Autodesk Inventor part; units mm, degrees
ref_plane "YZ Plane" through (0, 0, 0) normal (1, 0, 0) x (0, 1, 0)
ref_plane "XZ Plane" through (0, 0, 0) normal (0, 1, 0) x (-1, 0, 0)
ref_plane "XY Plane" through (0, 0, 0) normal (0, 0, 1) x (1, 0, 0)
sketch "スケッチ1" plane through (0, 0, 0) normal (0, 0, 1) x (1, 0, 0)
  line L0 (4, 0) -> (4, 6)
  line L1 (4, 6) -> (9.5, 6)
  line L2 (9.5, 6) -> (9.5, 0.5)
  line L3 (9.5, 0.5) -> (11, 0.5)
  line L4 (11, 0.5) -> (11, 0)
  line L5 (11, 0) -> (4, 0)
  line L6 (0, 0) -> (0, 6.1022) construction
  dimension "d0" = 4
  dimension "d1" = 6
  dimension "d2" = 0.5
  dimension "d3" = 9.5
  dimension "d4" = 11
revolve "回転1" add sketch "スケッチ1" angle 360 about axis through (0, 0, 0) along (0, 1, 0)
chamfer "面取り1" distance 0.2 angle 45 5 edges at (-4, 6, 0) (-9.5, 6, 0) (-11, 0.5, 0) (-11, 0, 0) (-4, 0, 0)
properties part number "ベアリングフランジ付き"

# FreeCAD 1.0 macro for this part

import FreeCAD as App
import Part
import Sketcher

V = App.Vector
Q = App.Units.Quantity


def edges_at(feature, points):
    """Names of the edges that pass closest to the given points."""
    edges = feature.Shape.Edges
    near = lambda p: min(range(len(edges)), key=lambda i: edges[i].distToShape(Part.Vertex(*p))[0])
    return sorted({f"Edge{near(p) + 1}" for p in points})

doc = App.newDocument("Part")
body = doc.addObject("PartDesign::Body", "Body")

# Sketch on XY plane
sketch1 = body.newObject("Sketcher::SketchObject", "Sketch")
sketch1.AttachmentSupport = (doc.getObject("XY_Plane"), [""])
sketch1.MapMode = "FlatFace"
sketch1.addGeometry([
    Part.LineSegment(V(4, 6, 0), V(4, 0, 0)),  # 0
    Part.LineSegment(V(4, 0, 0), V(11, 0, 0)),  # 1
    Part.LineSegment(V(11, 0, 0), V(11, 0.5, 0)),  # 2
    Part.LineSegment(V(11, 0.5, 0), V(9.5, 0.5, 0)),  # 3
    Part.LineSegment(V(9.5, 0.5, 0), V(9.5, 6, 0)),  # 4
    Part.LineSegment(V(9.5, 6, 0), V(4, 6, 0)),  # 5
], False)
sketch1.addConstraint([
    Sketcher.Constraint("Coincident", 0, 2, 1, 1),
    Sketcher.Constraint("Coincident", 1, 2, 2, 1),
    Sketcher.Constraint("Coincident", 2, 2, 3, 1),
    Sketcher.Constraint("Coincident", 3, 2, 4, 1),
    Sketcher.Constraint("Coincident", 4, 2, 5, 1),
    Sketcher.Constraint("Coincident", 5, 2, 0, 1),
    Sketcher.Constraint("Vertical", 0),
    Sketcher.Constraint("Horizontal", 1),
    Sketcher.Constraint("Vertical", 2),
    Sketcher.Constraint("Horizontal", 3),
    Sketcher.Constraint("Vertical", 4),
    Sketcher.Constraint("Horizontal", 5),
    Sketcher.Constraint("PointOnObject", 0, 2, -1),
    Sketcher.Constraint("Equal", 5, 4),
    Sketcher.Constraint("DistanceY", 0, 2, 0, 1, Q("6 mm")),
    Sketcher.Constraint("DistanceY", 2, 1, 2, 2, Q("0.5 mm")),
    Sketcher.Constraint("DistanceX", -1, 1, 0, 2, Q("4 mm")),
    Sketcher.Constraint("DistanceX", -1, 1, 1, 2, Q("11 mm")),
])
revolution = body.newObject("PartDesign::Revolution", "Revolution")
revolution.Profile = sketch1
revolution.ReferenceAxis = (sketch1, ["V_Axis"])
revolution.Angle = 360
doc.recompute()

chamfer = body.newObject("PartDesign::Chamfer", "Chamfer")
chamfer.Base = (revolution, edges_at(revolution, [
    (-4, 6, 0),
    (-9.5, 6, 0),
    (-11, 0.5, 0),
    (-11, 0, 0),
    (-4, 0, 0),
]))
chamfer.Size = 0.2

doc.recompute()
